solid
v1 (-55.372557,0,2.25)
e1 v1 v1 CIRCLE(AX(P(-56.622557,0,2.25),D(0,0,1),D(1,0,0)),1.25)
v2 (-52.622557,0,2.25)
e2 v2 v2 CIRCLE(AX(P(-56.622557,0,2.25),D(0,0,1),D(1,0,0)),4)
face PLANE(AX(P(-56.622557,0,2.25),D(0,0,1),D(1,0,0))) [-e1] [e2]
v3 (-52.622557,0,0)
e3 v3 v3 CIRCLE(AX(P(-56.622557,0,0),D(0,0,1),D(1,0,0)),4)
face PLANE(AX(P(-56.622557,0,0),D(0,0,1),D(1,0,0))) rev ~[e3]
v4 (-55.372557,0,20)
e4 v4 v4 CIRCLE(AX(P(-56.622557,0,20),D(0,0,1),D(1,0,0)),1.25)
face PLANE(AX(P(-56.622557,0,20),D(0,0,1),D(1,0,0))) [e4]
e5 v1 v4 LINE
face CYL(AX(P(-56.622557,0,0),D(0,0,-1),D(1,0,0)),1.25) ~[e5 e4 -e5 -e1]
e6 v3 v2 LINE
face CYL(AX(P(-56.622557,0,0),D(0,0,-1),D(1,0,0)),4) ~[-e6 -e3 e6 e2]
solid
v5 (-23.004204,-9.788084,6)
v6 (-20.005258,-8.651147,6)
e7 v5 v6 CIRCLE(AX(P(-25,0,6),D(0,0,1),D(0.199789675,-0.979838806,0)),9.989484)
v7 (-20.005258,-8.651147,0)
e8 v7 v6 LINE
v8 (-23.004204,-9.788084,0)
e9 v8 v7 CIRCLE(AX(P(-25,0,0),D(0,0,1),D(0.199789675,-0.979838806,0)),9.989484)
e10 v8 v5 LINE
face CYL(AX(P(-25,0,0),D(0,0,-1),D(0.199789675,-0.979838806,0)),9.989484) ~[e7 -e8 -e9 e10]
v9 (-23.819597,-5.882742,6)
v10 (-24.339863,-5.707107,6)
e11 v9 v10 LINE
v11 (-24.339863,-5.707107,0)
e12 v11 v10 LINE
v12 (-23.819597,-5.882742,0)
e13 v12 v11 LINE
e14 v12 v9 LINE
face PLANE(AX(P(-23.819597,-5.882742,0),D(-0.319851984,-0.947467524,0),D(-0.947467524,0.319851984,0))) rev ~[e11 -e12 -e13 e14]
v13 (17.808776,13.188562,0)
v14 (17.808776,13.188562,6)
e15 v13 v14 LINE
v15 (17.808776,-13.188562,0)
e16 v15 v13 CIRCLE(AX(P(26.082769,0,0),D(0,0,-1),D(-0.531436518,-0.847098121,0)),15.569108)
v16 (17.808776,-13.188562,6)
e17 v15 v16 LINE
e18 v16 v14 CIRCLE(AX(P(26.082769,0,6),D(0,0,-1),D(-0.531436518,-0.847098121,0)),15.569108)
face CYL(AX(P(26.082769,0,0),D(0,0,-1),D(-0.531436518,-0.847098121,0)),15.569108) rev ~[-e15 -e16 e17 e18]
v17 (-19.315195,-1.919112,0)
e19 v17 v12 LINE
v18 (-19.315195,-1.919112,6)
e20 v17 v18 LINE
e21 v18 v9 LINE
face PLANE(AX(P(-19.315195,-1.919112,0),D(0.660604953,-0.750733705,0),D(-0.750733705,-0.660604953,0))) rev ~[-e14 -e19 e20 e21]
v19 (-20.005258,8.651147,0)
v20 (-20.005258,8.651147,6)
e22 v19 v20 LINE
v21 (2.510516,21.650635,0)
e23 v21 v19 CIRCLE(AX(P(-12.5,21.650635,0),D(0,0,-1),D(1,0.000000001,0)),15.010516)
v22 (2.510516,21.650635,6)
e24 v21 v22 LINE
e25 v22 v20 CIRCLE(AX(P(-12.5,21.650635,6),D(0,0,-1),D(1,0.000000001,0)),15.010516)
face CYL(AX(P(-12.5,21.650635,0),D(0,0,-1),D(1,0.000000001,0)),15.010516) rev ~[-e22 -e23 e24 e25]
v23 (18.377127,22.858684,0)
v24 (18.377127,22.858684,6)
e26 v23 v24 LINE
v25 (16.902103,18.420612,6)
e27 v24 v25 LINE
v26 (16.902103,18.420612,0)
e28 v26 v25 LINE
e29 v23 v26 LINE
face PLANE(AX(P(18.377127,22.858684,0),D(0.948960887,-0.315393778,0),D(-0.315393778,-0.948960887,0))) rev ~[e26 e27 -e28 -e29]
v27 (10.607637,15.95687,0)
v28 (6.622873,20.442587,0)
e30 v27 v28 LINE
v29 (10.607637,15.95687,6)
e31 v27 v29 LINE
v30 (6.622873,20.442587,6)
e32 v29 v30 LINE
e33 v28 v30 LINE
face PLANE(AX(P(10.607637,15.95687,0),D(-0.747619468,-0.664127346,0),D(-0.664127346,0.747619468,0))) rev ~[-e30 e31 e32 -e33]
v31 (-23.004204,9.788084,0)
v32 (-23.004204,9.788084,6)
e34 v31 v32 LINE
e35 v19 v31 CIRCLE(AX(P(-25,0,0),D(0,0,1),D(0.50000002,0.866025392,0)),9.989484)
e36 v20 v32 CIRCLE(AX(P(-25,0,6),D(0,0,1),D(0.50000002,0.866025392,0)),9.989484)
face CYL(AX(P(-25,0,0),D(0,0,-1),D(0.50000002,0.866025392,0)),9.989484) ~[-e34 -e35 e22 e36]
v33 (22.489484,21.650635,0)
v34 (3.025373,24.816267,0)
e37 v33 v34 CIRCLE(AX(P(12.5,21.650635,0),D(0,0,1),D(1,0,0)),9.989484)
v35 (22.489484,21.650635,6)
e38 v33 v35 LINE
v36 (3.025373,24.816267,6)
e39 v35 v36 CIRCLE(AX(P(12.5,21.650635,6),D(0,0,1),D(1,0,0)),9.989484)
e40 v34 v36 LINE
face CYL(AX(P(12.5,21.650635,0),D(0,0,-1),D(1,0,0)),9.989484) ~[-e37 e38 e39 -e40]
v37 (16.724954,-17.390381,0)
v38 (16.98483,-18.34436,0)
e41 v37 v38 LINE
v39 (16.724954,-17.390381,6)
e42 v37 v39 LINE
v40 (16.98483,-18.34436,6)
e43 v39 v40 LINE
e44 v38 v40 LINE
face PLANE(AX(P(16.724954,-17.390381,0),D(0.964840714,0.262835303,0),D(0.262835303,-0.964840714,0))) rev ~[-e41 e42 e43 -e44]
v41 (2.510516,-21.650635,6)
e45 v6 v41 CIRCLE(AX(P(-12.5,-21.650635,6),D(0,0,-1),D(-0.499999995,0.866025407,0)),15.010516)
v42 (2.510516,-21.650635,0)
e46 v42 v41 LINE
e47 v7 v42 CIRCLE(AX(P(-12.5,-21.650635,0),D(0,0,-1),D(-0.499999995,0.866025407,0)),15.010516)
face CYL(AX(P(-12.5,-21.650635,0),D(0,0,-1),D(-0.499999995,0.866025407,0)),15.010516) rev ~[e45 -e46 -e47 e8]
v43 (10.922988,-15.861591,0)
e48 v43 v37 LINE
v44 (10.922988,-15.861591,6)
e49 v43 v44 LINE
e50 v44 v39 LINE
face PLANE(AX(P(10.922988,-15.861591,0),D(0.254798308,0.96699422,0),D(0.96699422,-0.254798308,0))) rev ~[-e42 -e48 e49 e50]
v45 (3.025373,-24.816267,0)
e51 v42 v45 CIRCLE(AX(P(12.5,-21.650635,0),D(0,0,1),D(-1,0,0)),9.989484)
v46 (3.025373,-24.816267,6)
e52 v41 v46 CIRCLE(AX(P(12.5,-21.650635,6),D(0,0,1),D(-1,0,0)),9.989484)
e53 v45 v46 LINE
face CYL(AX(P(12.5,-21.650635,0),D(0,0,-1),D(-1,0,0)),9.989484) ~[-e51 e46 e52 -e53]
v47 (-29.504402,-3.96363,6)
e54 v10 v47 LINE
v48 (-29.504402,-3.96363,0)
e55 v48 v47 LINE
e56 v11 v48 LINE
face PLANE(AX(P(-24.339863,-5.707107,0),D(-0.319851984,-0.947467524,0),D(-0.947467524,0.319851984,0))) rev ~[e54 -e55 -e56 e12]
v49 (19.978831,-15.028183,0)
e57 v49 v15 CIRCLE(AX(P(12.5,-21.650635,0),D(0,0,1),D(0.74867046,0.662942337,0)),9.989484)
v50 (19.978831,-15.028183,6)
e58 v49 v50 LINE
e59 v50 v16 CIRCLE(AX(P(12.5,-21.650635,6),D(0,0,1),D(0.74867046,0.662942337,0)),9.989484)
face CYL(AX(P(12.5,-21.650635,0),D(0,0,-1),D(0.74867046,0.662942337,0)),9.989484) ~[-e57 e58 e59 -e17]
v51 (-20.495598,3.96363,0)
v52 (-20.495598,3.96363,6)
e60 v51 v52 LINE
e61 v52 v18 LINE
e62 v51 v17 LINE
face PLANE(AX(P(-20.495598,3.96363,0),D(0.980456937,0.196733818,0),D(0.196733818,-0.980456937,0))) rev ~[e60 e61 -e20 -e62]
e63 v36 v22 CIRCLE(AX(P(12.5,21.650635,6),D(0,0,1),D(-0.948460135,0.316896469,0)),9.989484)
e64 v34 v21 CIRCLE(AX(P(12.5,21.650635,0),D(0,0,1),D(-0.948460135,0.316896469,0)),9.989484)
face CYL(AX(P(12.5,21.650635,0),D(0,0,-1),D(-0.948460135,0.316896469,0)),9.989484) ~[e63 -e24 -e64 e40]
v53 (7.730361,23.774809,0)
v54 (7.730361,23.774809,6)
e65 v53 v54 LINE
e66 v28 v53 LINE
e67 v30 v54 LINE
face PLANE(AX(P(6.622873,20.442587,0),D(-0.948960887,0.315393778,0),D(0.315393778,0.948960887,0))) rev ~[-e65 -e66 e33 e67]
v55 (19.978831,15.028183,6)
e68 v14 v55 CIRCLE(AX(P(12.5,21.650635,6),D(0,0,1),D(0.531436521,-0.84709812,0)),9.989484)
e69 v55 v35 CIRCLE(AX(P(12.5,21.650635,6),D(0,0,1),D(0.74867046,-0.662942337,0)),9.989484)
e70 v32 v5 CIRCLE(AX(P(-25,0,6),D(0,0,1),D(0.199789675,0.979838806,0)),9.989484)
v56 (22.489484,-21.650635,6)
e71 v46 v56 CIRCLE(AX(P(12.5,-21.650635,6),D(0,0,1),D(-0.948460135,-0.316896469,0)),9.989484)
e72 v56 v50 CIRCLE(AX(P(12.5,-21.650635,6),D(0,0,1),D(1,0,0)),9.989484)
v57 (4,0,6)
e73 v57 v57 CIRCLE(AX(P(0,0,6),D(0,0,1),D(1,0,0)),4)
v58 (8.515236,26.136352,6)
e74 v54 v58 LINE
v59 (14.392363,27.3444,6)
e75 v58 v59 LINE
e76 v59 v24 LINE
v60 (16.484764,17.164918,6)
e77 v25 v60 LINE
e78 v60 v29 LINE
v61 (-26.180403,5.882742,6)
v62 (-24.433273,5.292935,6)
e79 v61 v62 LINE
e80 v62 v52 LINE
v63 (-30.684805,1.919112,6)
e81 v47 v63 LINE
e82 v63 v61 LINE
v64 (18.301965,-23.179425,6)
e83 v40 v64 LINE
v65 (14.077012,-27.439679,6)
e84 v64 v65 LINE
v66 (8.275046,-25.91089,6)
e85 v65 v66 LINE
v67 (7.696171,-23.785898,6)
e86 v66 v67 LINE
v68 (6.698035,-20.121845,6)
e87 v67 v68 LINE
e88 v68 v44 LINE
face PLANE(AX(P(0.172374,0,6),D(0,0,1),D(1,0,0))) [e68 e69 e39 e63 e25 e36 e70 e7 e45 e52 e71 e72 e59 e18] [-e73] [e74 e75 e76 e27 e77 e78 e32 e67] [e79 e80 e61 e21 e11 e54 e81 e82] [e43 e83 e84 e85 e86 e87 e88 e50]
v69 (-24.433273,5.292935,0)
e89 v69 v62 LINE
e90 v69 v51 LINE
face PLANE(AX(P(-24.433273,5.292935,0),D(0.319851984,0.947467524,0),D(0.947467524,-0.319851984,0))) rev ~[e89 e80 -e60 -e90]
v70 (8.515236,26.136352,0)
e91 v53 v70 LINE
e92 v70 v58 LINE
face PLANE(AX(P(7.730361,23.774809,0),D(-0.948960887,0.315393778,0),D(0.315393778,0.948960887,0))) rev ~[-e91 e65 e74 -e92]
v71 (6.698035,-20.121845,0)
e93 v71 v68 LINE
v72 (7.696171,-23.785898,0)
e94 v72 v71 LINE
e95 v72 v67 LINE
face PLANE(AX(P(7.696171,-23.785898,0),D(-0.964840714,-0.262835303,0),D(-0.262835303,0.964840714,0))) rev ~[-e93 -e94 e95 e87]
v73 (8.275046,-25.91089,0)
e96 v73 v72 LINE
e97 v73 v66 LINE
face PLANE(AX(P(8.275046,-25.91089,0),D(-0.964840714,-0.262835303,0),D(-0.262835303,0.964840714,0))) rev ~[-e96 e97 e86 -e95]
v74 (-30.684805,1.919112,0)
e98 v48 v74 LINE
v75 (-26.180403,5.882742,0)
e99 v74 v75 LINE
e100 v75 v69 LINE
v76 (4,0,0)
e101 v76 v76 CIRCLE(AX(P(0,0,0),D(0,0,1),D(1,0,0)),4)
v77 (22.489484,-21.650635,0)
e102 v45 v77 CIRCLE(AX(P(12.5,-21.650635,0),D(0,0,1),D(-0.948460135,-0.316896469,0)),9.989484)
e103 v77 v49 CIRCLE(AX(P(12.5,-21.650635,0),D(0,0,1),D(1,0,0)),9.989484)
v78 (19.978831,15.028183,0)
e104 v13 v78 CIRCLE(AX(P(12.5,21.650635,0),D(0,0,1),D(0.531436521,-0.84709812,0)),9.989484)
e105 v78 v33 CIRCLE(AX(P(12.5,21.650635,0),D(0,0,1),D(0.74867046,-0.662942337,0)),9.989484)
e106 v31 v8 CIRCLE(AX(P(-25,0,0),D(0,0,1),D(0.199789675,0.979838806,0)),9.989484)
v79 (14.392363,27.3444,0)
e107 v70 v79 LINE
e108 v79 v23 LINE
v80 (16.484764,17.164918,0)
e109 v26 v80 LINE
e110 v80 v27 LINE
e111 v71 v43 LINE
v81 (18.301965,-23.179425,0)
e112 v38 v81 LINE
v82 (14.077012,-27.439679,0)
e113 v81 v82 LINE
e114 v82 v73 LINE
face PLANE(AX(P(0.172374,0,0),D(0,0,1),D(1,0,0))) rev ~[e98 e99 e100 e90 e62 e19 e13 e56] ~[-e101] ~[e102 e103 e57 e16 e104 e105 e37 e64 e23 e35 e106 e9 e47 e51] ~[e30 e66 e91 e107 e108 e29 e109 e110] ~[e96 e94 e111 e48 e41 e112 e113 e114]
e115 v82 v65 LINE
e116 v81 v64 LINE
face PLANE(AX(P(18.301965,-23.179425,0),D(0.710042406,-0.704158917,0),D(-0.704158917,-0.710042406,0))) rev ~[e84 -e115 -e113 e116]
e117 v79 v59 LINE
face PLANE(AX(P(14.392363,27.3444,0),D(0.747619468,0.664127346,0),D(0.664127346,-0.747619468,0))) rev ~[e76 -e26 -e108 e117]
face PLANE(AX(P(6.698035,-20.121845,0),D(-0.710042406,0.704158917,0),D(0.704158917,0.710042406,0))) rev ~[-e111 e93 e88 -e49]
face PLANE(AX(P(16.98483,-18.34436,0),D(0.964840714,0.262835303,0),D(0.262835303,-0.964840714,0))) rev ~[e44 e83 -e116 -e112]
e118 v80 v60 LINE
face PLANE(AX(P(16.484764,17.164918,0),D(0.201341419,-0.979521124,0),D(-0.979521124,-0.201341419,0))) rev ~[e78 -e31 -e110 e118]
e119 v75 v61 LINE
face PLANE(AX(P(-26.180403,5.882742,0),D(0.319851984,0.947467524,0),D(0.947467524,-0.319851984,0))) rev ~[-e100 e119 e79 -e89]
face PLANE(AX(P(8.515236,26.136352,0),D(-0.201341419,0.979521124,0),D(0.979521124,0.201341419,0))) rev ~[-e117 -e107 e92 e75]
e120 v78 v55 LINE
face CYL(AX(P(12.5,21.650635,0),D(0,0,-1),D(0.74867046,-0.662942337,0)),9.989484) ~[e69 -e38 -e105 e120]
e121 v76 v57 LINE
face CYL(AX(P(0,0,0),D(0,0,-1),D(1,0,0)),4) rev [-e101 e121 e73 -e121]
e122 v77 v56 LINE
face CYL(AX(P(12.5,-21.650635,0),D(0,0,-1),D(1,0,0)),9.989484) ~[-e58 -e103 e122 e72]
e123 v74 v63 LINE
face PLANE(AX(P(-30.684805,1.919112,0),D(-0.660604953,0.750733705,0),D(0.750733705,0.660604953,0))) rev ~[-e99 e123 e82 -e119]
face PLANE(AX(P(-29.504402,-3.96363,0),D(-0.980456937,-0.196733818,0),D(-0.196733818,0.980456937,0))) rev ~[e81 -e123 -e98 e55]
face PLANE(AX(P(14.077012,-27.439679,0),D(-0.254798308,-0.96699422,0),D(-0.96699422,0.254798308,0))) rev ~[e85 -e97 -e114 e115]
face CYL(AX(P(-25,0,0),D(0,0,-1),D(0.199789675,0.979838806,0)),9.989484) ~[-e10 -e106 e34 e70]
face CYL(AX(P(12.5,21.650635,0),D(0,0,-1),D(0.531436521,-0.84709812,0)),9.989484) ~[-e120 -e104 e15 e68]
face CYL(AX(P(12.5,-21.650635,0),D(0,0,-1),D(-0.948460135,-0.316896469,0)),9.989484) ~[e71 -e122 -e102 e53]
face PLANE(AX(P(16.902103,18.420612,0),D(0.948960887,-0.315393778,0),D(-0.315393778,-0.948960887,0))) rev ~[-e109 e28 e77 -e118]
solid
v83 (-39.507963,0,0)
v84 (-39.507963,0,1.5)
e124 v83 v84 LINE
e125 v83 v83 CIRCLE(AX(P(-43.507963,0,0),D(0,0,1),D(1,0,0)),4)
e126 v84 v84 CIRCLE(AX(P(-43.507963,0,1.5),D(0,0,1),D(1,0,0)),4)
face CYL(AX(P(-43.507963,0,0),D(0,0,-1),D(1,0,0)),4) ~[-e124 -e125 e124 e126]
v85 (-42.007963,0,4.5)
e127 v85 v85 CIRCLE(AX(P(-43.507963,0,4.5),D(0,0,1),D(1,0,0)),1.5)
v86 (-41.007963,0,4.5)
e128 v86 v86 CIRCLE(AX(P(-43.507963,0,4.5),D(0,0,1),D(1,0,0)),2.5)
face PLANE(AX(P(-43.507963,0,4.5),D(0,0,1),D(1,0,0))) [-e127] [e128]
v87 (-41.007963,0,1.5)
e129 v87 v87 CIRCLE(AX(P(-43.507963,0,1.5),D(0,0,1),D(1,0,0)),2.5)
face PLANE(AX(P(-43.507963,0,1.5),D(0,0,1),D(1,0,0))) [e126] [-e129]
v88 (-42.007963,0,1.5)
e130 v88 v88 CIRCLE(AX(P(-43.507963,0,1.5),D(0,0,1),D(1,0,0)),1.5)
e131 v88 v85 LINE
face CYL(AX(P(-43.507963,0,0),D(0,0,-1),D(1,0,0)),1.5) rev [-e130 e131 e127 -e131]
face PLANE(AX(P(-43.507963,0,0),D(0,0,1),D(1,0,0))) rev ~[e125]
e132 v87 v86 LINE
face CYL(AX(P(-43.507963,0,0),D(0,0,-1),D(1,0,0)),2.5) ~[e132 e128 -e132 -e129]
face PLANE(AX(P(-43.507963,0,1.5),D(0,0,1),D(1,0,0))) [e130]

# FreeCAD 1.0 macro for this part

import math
import FreeCAD as App
import Part
import Sketcher

doc = App.newDocument("Part")
body = doc.addObject("PartDesign::Body", "Body")

# Sketch on XY plane
sketch1 = body.newObject("Sketcher::SketchObject", "Sketch")
sketch1.AttachmentSupport = (doc.getObject("XY_Plane"), [""])
sketch1.MapMode = "FlatFace"
sketch1.addGeometry(Part.ArcOfCircle(Part.Circle(App.Vector(26.082769, 0, 0), App.Vector(0, 0, 1), 15.569108), math.radians(122.102566), math.radians(237.897434)), False)
sketch1.addGeometry(Part.ArcOfCircle(Part.Circle(App.Vector(12.5, 21.650635, 0), App.Vector(0, 0, 1), 9.989484), math.radians(-57.897434), math.radians(-41.52466)), False)
sketch1.addGeometry(Part.ArcOfCircle(Part.Circle(App.Vector(12.5, 21.650635, 0), App.Vector(0, 0, 1), 9.989484), math.radians(-41.52466), math.radians(0)), False)
sketch1.addGeometry(Part.ArcOfCircle(Part.Circle(App.Vector(12.5, 21.650635, 0), App.Vector(0, 0, 1), 9.989484), math.radians(0), math.radians(161.52466)), False)
sketch1.addGeometry(Part.ArcOfCircle(Part.Circle(App.Vector(12.5, 21.650635, 0), App.Vector(0, 0, 1), 9.989484), math.radians(161.52466), math.radians(180)), False)
sketch1.addGeometry(Part.ArcOfCircle(Part.Circle(App.Vector(-12.5, 21.650635, 0), App.Vector(0, 0, 1), 15.010516), math.radians(-119.999999), math.radians(0)), False)
sketch1.addGeometry(Part.ArcOfCircle(Part.Circle(App.Vector(-25, 0, 0), App.Vector(0, 0, 1), 9.989484), math.radians(59.999999), math.radians(78.47534)), False)
sketch1.addGeometry(Part.ArcOfCircle(Part.Circle(App.Vector(-25, 0, 0), App.Vector(0, 0, 1), 9.989484), math.radians(78.47534), math.radians(281.52466)), False)
sketch1.addGeometry(Part.ArcOfCircle(Part.Circle(App.Vector(-25, 0, 0), App.Vector(0, 0, 1), 9.989484), math.radians(-78.47534), math.radians(-59.999999)), False)
sketch1.addGeometry(Part.ArcOfCircle(Part.Circle(App.Vector(-12.5, -21.650635, 0), App.Vector(0, 0, 1), 15.010516), math.radians(0), math.radians(120)), False)
sketch1.addGeometry(Part.ArcOfCircle(Part.Circle(App.Vector(12.5, -21.650635, 0), App.Vector(0, 0, 1), 9.989484), math.radians(-180), math.radians(-161.52466)), False)
sketch1.addGeometry(Part.ArcOfCircle(Part.Circle(App.Vector(12.5, -21.650635, 0), App.Vector(0, 0, 1), 9.989484), math.radians(-161.52466), math.radians(0)), False)
sketch1.addGeometry(Part.ArcOfCircle(Part.Circle(App.Vector(12.5, -21.650635, 0), App.Vector(0, 0, 1), 9.989484), math.radians(0), math.radians(41.52466)), False)
sketch1.addGeometry(Part.ArcOfCircle(Part.Circle(App.Vector(12.5, -21.650635, 0), App.Vector(0, 0, 1), 9.989484), math.radians(41.52466), math.radians(57.897434)), False)
sketch1.addGeometry(Part.LineSegment(App.Vector(-20.495598, 3.96363, 0), App.Vector(-19.315195, -1.919112, 0)), False)
sketch1.addGeometry(Part.LineSegment(App.Vector(-19.315195, -1.919112, 0), App.Vector(-23.819597, -5.882742, 0)), False)
sketch1.addGeometry(Part.LineSegment(App.Vector(-23.819597, -5.882742, 0), App.Vector(-24.339863, -5.707107, 0)), False)
sketch1.addGeometry(Part.LineSegment(App.Vector(-24.339863, -5.707107, 0), App.Vector(-29.504402, -3.96363, 0)), False)
sketch1.addGeometry(Part.LineSegment(App.Vector(-29.504402, -3.96363, 0), App.Vector(-30.684805, 1.919112, 0)), False)
sketch1.addGeometry(Part.LineSegment(App.Vector(-30.684805, 1.919112, 0), App.Vector(-26.180403, 5.882742, 0)), False)
sketch1.addGeometry(Part.LineSegment(App.Vector(-26.180403, 5.882742, 0), App.Vector(-24.433273, 5.292935, 0)), False)
sketch1.addGeometry(Part.LineSegment(App.Vector(-24.433273, 5.292935, 0), App.Vector(-20.495598, 3.96363, 0)), False)
sketch1.addGeometry(Part.Circle(App.Vector(0, 0, 0), App.Vector(0, 0, 1), 4), False)
sketch1.addGeometry(Part.LineSegment(App.Vector(16.98483, -18.34436, 0), App.Vector(18.301965, -23.179425, 0)), False)
sketch1.addGeometry(Part.LineSegment(App.Vector(18.301965, -23.179425, 0), App.Vector(14.077012, -27.439679, 0)), False)
sketch1.addGeometry(Part.LineSegment(App.Vector(14.077012, -27.439679, 0), App.Vector(8.275046, -25.91089, 0)), False)
sketch1.addGeometry(Part.LineSegment(App.Vector(8.275046, -25.91089, 0), App.Vector(7.696171, -23.785898, 0)), False)
sketch1.addGeometry(Part.LineSegment(App.Vector(7.696171, -23.785898, 0), App.Vector(6.698035, -20.121845, 0)), False)
sketch1.addGeometry(Part.LineSegment(App.Vector(6.698035, -20.121845, 0), App.Vector(10.922988, -15.861591, 0)), False)
sketch1.addGeometry(Part.LineSegment(App.Vector(10.922988, -15.861591, 0), App.Vector(16.724954, -17.390381, 0)), False)
sketch1.addGeometry(Part.LineSegment(App.Vector(16.724954, -17.390381, 0), App.Vector(16.98483, -18.34436, 0)), False)
sketch1.addGeometry(Part.LineSegment(App.Vector(10.607637, 15.95687, 0), App.Vector(6.622873, 20.442587, 0)), False)
sketch1.addGeometry(Part.LineSegment(App.Vector(6.622873, 20.442587, 0), App.Vector(7.730361, 23.774809, 0)), False)
sketch1.addGeometry(Part.LineSegment(App.Vector(7.730361, 23.774809, 0), App.Vector(8.515236, 26.136352, 0)), False)
sketch1.addGeometry(Part.LineSegment(App.Vector(8.515236, 26.136352, 0), App.Vector(14.392363, 27.3444, 0)), False)
sketch1.addGeometry(Part.LineSegment(App.Vector(14.392363, 27.3444, 0), App.Vector(18.377127, 22.858684, 0)), False)
sketch1.addGeometry(Part.LineSegment(App.Vector(18.377127, 22.858684, 0), App.Vector(16.902103, 18.420612, 0)), False)
sketch1.addGeometry(Part.LineSegment(App.Vector(16.902103, 18.420612, 0), App.Vector(16.484764, 17.164918, 0)), False)
sketch1.addGeometry(Part.LineSegment(App.Vector(16.484764, 17.164918, 0), App.Vector(10.607637, 15.95687, 0)), False)
sketch1.addConstraint(Sketcher.Constraint("Tangent", 0, 1, 1, 1))
sketch1.addConstraint(Sketcher.Constraint("Tangent", 1, 2, 2, 1))
sketch1.addConstraint(Sketcher.Constraint("Tangent", 2, 2, 3, 1))
sketch1.addConstraint(Sketcher.Constraint("Tangent", 3, 2, 4, 1))
sketch1.addConstraint(Sketcher.Constraint("Tangent", 4, 2, 5, 2))
sketch1.addConstraint(Sketcher.Constraint("Tangent", 5, 1, 6, 1))
sketch1.addConstraint(Sketcher.Constraint("Tangent", 6, 2, 7, 1))
sketch1.addConstraint(Sketcher.Constraint("Tangent", 7, 2, 8, 1))
sketch1.addConstraint(Sketcher.Constraint("Tangent", 8, 2, 9, 2))
sketch1.addConstraint(Sketcher.Constraint("Tangent", 9, 1, 10, 1))
sketch1.addConstraint(Sketcher.Constraint("Tangent", 10, 2, 11, 1))
sketch1.addConstraint(Sketcher.Constraint("Tangent", 11, 2, 12, 1))
sketch1.addConstraint(Sketcher.Constraint("Tangent", 12, 2, 13, 1))
sketch1.addConstraint(Sketcher.Constraint("Tangent", 13, 2, 0, 2))
sketch1.addConstraint(Sketcher.Constraint("Coincident", 14, 2, 15, 1))
sketch1.addConstraint(Sketcher.Constraint("Coincident", 15, 2, 16, 1))
sketch1.addConstraint(Sketcher.Constraint("Coincident", 16, 2, 17, 1))
sketch1.addConstraint(Sketcher.Constraint("Coincident", 17, 2, 18, 1))
sketch1.addConstraint(Sketcher.Constraint("Coincident", 18, 2, 19, 1))
sketch1.addConstraint(Sketcher.Constraint("Coincident", 19, 2, 20, 1))
sketch1.addConstraint(Sketcher.Constraint("Coincident", 20, 2, 21, 1))
sketch1.addConstraint(Sketcher.Constraint("Coincident", 21, 2, 14, 1))
sketch1.addConstraint(Sketcher.Constraint("Coincident", 23, 2, 24, 1))
sketch1.addConstraint(Sketcher.Constraint("Coincident", 24, 2, 25, 1))
sketch1.addConstraint(Sketcher.Constraint("Coincident", 25, 2, 26, 1))
sketch1.addConstraint(Sketcher.Constraint("Coincident", 26, 2, 27, 1))
sketch1.addConstraint(Sketcher.Constraint("Coincident", 27, 2, 28, 1))
sketch1.addConstraint(Sketcher.Constraint("Coincident", 28, 2, 29, 1))
sketch1.addConstraint(Sketcher.Constraint("Coincident", 29, 2, 30, 1))
sketch1.addConstraint(Sketcher.Constraint("Coincident", 30, 2, 23, 1))
sketch1.addConstraint(Sketcher.Constraint("Coincident", 31, 2, 32, 1))
sketch1.addConstraint(Sketcher.Constraint("Coincident", 32, 2, 33, 1))
sketch1.addConstraint(Sketcher.Constraint("Coincident", 33, 2, 34, 1))
sketch1.addConstraint(Sketcher.Constraint("Coincident", 34, 2, 35, 1))
sketch1.addConstraint(Sketcher.Constraint("Coincident", 35, 2, 36, 1))
sketch1.addConstraint(Sketcher.Constraint("Coincident", 36, 2, 37, 1))
sketch1.addConstraint(Sketcher.Constraint("Coincident", 37, 2, 38, 1))
sketch1.addConstraint(Sketcher.Constraint("Coincident", 38, 2, 31, 1))
sketch1.addConstraint(Sketcher.Constraint("Coincident", 22, 3, -1, 1))
sketch1.addConstraint(Sketcher.Constraint("Coincident", 3, 3, 1, 3))
sketch1.addConstraint(Sketcher.Constraint("Coincident", 8, 3, 6, 3))
sketch1.addConstraint(Sketcher.Constraint("Coincident", 12, 3, 10, 3))
sketch1.addConstraint(Sketcher.Constraint("Equal", 3, 4))
sketch1.addConstraint(Sketcher.Constraint("Equal", 4, 6))
sketch1.addConstraint(Sketcher.Constraint("Equal", 5, 9))
sketch1.addConstraint(Sketcher.Constraint("Equal", 8, 10))
sketch1.addConstraint(Sketcher.Constraint("Equal", 12, 13))
sketch1.addConstraint(Sketcher.Constraint("Symmetric", 1, 3, 9, 3, -1, 1))
sketch1.addConstraint(Sketcher.Constraint("Symmetric", 1, 3, 5, 3, -2))
sketch1.addConstraint(Sketcher.Constraint("Symmetric", 3, 2, 10, 2, -1))
sketch1.addConstraint(Sketcher.Constraint("Parallel", 16, 17))
sketch1.addConstraint(Sketcher.Constraint("Parallel", 14, 18))
sketch1.addConstraint(Sketcher.Constraint("Parallel", 15, 19))
sketch1.addConstraint(Sketcher.Constraint("Parallel", 17, 20))
sketch1.addConstraint(Sketcher.Constraint("Parallel", 20, 21))
sketch1.addConstraint(Sketcher.Constraint("Parallel", 23, 26))
sketch1.addConstraint(Sketcher.Constraint("Parallel", 26, 27))
sketch1.addConstraint(Sketcher.Constraint("Parallel", 24, 28))
sketch1.addConstraint(Sketcher.Constraint("Parallel", 25, 29))
sketch1.addConstraint(Sketcher.Constraint("Parallel", 27, 30))
sketch1.addConstraint(Sketcher.Constraint("Parallel", 32, 33))
sketch1.addConstraint(Sketcher.Constraint("Parallel", 31, 35))
sketch1.addConstraint(Sketcher.Constraint("Parallel", 33, 36))
sketch1.addConstraint(Sketcher.Constraint("Parallel", 36, 37))
sketch1.addConstraint(Sketcher.Constraint("Parallel", 34, 38))
sketch1.addConstraint(Sketcher.Constraint("Horizontal", 5, 3, 2, 2))
sketch1.addConstraint(Sketcher.Constraint("Horizontal", 9, 1, 11, 2))
sketch1.addConstraint(Sketcher.Constraint("Vertical", 6, 2, 7, 2))
sketch1.addConstraint(Sketcher.Constraint("Vertical", 1, 2, 12, 2))
sketch1.addConstraint(Sketcher.Constraint("Equal", 14, 15))
sketch1.addConstraint(Sketcher.Constraint("Equal", 15, 18))
sketch1.addConstraint(Sketcher.Constraint("Equal", 19, 24))
sketch1.addConstraint(Sketcher.Constraint("Equal", 24, 25))
sketch1.addConstraint(Sketcher.Constraint("Equal", 25, 28))
sketch1.addConstraint(Sketcher.Constraint("Equal", 29, 31))
sketch1.addConstraint(Sketcher.Constraint("Equal", 31, 34))
sketch1.addConstraint(Sketcher.Constraint("Equal", 34, 35))
sketch1.addConstraint(Sketcher.Constraint("Diameter", 22, 8.0))
sketch1.addConstraint(Sketcher.Constraint("Distance", 14, 6.0))
sketch1.addConstraint(Sketcher.Constraint("DistanceX", 6, 3, -1, 1, 25.0))
sketch1.addConstraint(Sketcher.Constraint("DistanceX", 5, 3, 1, 3, 25.0))
sketch1.addConstraint(Sketcher.Constraint("Radius", 0, 15.569108))
sketch1.addConstraint(Sketcher.Constraint("Distance", 20, 1.844))
sketch1.addConstraint(Sketcher.Constraint("Distance", 21, 4.156))
sketch1.addConstraint(Sketcher.Constraint("Radius", 1, 9.989484))
sketch1.addConstraint(Sketcher.Constraint("DistanceX", 30, 2, 12, 2, 2.994001))
sketch1.addConstraint(Sketcher.Constraint("DistanceY", 26, 2, -1, 1, 23.785898))
sketch1.addConstraint(Sketcher.Constraint("DistanceY", -1, 1, 34, 2, 27.3444))
sketch1.addConstraint(Sketcher.Constraint("DistanceX", 19, 2, 6, 2, 3.176199))
sketch1.addConstraint(Sketcher.Constraint("DistanceX", 10, 2, 26, 2, 4.670798))
sketch1.addConstraint(Sketcher.Constraint("DistanceX", 3, 2, 31, 2, 3.5975))
sketch1.addConstraint(Sketcher.Constraint("Distance", 36, 4.67677))
sketch1.addConstraint(Sketcher.Constraint("Distance", 37, 1.32323))
sketch1.addConstraint(Sketcher.Constraint("DistanceX", -1, 1, 1, 2, 19.978831))
sketch1.addConstraint(Sketcher.Constraint("DistanceY", 14, 2, -1, 1, 1.919112))
sketch1.addConstraint(Sketcher.Constraint("DistanceY", 15, 2, -1, 1, 5.882742))
sketch1.addConstraint(Sketcher.Constraint("DistanceY", 17, 2, -1, 1, 3.96363))
sketch1.addConstraint(Sketcher.Constraint("DistanceY", -1, 1, 18, 2, 1.919112))
sketch1.addConstraint(Sketcher.Constraint("DistanceX", -1, 1, 24, 2, 14.077012))
sketch1.addConstraint(Sketcher.Constraint("DistanceY", 24, 2, -1, 1, 27.439679))
sketch1.addConstraint(Sketcher.Constraint("DistanceY", 25, 2, -1, 1, 25.91089))
sketch1.addConstraint(Sketcher.Constraint("DistanceX", -1, 1, 26, 2, 7.696171))
sketch1.addConstraint(Sketcher.Constraint("DistanceX", -1, 1, 28, 2, 10.922988))
sketch1.addConstraint(Sketcher.Constraint("DistanceY", 28, 2, -1, 1, 15.861591))
sketch1.addConstraint(Sketcher.Constraint("DistanceX", -1, 1, 32, 2, 7.730361))
sketch1.addConstraint(Sketcher.Constraint("DistanceY", -1, 1, 32, 2, 23.774809))
sketch1.addConstraint(Sketcher.Constraint("DistanceY", -1, 1, 33, 2, 26.136352))
sketch1.addConstraint(Sketcher.Constraint("DistanceY", -1, 1, 36, 2, 18.420612))
sketch1.addConstraint(Sketcher.Constraint("DistanceY", 6, 2, 5, 3, 11.862551))
sketch1.addConstraint(Sketcher.Constraint("DistanceX", 16, 2, 7, 2, 1.335659))
pad1 = body.newObject("PartDesign::Pad", "Pad")
pad1.Profile = sketch1
pad1.Length = 6
body2 = doc.addObject("PartDesign::Body", "Body001")

# Sketch on XY plane
sketch2 = body2.newObject("Sketcher::SketchObject", "Sketch001")
sketch2.AttachmentSupport = (doc.getObject("XY_Plane001"), [""])
sketch2.MapMode = "FlatFace"
sketch2.addGeometry(Part.Circle(App.Vector(-56.622557, 0, 0), App.Vector(0, 0, 1), 4), False)
sketch2.addGeometry(Part.Circle(App.Vector(-56.622557, 0, 0), App.Vector(0, 0, 1), 1.25), False)
sketch2.addConstraint(Sketcher.Constraint("Coincident", 1, 3, 0, 3))
sketch2.addConstraint(Sketcher.Constraint("PointOnObject", 0, 3, -1))
sketch2.addConstraint(Sketcher.Constraint("Diameter", 0, 8.0))
sketch2.addConstraint(Sketcher.Constraint("Diameter", 1, 2.5))
sketch2.addConstraint(Sketcher.Constraint("DistanceX", 0, 3, -1, 1, 56.622557))
pad2 = body2.newObject("PartDesign::Pad", "Pad001")
pad2.Profile = sketch2
pad2.Length = 2.25

# Sketch on XY plane
sketch3 = body2.newObject("Sketcher::SketchObject", "Sketch002")
sketch3.AttachmentSupport = (doc.getObject("XY_Plane001"), [""])
sketch3.MapMode = "FlatFace"
sketch3.addGeometry(Part.Circle(App.Vector(-56.622557, 0, 0), App.Vector(0, 0, 1), 1.25), False)
sketch3.addConstraint(Sketcher.Constraint("PointOnObject", 0, 3, -1))
sketch3.addConstraint(Sketcher.Constraint("Diameter", 0, 2.5))
sketch3.addConstraint(Sketcher.Constraint("DistanceX", 0, 3, -1, 1, 56.622557))
pad3 = body2.newObject("PartDesign::Pad", "Pad002")
pad3.Profile = sketch3
pad3.Length = 20
body3 = doc.addObject("PartDesign::Body", "Body002")

# Sketch on XY plane
sketch4 = body3.newObject("Sketcher::SketchObject", "Sketch003")
sketch4.AttachmentSupport = (doc.getObject("XY_Plane002"), [""])
sketch4.MapMode = "FlatFace"
sketch4.addGeometry(Part.Circle(App.Vector(-43.507963, 0, 0), App.Vector(0, 0, 1), 4), False)
sketch4.addGeometry(Part.Circle(App.Vector(-43.507963, 0, 0), App.Vector(0, 0, 1), 2.5), False)
sketch4.addConstraint(Sketcher.Constraint("Coincident", 1, 3, 0, 3))
sketch4.addConstraint(Sketcher.Constraint("PointOnObject", 0, 3, -1))
sketch4.addConstraint(Sketcher.Constraint("Diameter", 0, 8.0))
sketch4.addConstraint(Sketcher.Constraint("Diameter", 1, 5.0))
sketch4.addConstraint(Sketcher.Constraint("DistanceX", 0, 3, -1, 1, 43.507963))
pad4 = body3.newObject("PartDesign::Pad", "Pad003")
pad4.Profile = sketch4
pad4.Length = 1.5

# Sketch on XY plane
sketch5 = body3.newObject("Sketcher::SketchObject", "Sketch004")
sketch5.AttachmentSupport = (doc.getObject("XY_Plane002"), [""])
sketch5.MapMode = "FlatFace"
sketch5.addGeometry(Part.Circle(App.Vector(-43.507963, 0, 0), App.Vector(0, 0, 1), 2.5), False)
sketch5.addGeometry(Part.Circle(App.Vector(-43.507963, 0, 0), App.Vector(0, 0, 1), 1.5), False)
sketch5.addConstraint(Sketcher.Constraint("Coincident", 1, 3, 0, 3))
sketch5.addConstraint(Sketcher.Constraint("PointOnObject", 0, 3, -1))
sketch5.addConstraint(Sketcher.Constraint("Diameter", 0, 5.0))
sketch5.addConstraint(Sketcher.Constraint("Diameter", 1, 3.0))
sketch5.addConstraint(Sketcher.Constraint("DistanceX", 0, 3, -1, 1, 43.507963))
pad5 = body3.newObject("PartDesign::Pad", "Pad004")
pad5.Profile = sketch5
pad5.Length = 4.5

# Sketch on XY plane
sketch6 = body3.newObject("Sketcher::SketchObject", "Sketch005")
sketch6.AttachmentSupport = (doc.getObject("XY_Plane002"), [""])
sketch6.MapMode = "FlatFace"
sketch6.addGeometry(Part.Circle(App.Vector(-43.507963, 0, 0), App.Vector(0, 0, 1), 1.5), False)
sketch6.addConstraint(Sketcher.Constraint("PointOnObject", 0, 3, -1))
sketch6.addConstraint(Sketcher.Constraint("Diameter", 0, 3.0))
sketch6.addConstraint(Sketcher.Constraint("DistanceX", 0, 3, -1, 1, 43.507963))
pad6 = body3.newObject("PartDesign::Pad", "Pad005")
pad6.Profile = sketch6
pad6.Length = 1.5

doc.recompute()
